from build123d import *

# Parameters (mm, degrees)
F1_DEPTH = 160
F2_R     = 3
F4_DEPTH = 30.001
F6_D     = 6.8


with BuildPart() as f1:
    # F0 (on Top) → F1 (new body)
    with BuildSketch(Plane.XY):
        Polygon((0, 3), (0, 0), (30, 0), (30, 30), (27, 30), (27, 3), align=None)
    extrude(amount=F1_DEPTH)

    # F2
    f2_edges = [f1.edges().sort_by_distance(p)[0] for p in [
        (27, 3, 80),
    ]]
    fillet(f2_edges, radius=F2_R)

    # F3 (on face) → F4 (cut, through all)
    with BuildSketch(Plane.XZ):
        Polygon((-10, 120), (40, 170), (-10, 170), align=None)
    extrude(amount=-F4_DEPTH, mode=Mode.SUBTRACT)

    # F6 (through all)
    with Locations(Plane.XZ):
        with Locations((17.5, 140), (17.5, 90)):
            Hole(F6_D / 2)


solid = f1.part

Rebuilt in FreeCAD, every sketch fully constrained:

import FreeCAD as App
import Part
import Sketcher
from FreeCAD import Vector


def edges_at(feature, points):
    """Names of the edges that pass closest to the given points."""
    edges = feature.Shape.Edges
    near = lambda p: min(range(len(edges)), key=lambda i: edges[i].distToShape(Part.Vertex(*p))[0])
    return sorted({f"Edge{near(p) + 1}" for p in points})


def add_polygon(sketch, points):
    """Adds a closed chain of lines whose ends are joined by coincident constraints."""
    first, n = sketch.GeometryCount, len(points)
    for a, b in zip(points, points[1:] + points[:1]):
        sketch.addGeometry(Part.LineSegment(App.Vector(*a, 0), App.Vector(*b, 0)), False)
    for i in range(n):
        sketch.addConstraint(Sketcher.Constraint("Coincident", first + i, 2, first + (i + 1) % n, 1))

doc = App.newDocument("Part")
body = doc.addObject("PartDesign::Body", "Body")

# Sketch on XY plane
sketch1 = doc.addObject("Sketcher::SketchObject", "Sketch")
body.addObject(sketch1)
sketch1.AttachmentSupport = (doc.XY_Plane, [""])
sketch1.MapMode = "FlatFace"
add_polygon(sketch1, [(0, 3), (0, 0), (30, 0), (30, 30), (27, 30), (27, 3)])  # lines 0-5
sketch1.addConstraint(Sketcher.Constraint("Vertical", 0))
sketch1.addConstraint(Sketcher.Constraint("Horizontal", 1))
sketch1.addConstraint(Sketcher.Constraint("Vertical", 2))
sketch1.addConstraint(Sketcher.Constraint("Horizontal", 3))
sketch1.addConstraint(Sketcher.Constraint("Vertical", 4))
sketch1.addConstraint(Sketcher.Constraint("Horizontal", 5))
sketch1.addConstraint(Sketcher.Constraint("Coincident", 0, 2, -1, 1))
sketch1.addConstraint(Sketcher.Constraint("Equal", 3, 0))
sketch1.addConstraint(Sketcher.Constraint("Equal", 1, 2))
sketch1.addConstraint(Sketcher.Constraint("DistanceX", 1, 1, 1, 2, 30.0))
sketch1.addConstraint(Sketcher.Constraint("DistanceX", 3, 2, 3, 1, 3.0))
pad1 = doc.addObject("PartDesign::Pad", "Pad")
body.addObject(pad1)
pad1.Profile = sketch1
pad1.Length = 160
doc.recompute()

fillet = doc.addObject("PartDesign::Fillet", "Fillet")
body.addObject(fillet)
fillet.Base = (pad1, edges_at(pad1, [(27, 3, 80)]))
fillet.Radius = 3

# Sketch on XZ plane
sketch2 = doc.addObject("Sketcher::SketchObject", "Sketch001")
body.addObject(sketch2)
sketch2.AttachmentSupport = (doc.XZ_Plane, [""])
sketch2.MapMode = "FlatFace"
add_polygon(sketch2, [(-10, 120), (40, 170), (-10, 170)])  # lines 0-2
sketch2.addConstraint(Sketcher.Constraint("Horizontal", 1))
sketch2.addConstraint(Sketcher.Constraint("Vertical", 2))
sketch2.addConstraint(Sketcher.Constraint("Equal", 1, 2))
sketch2.addConstraint(Sketcher.Constraint("DistanceX", 1, 2, 1, 1, 50.0))
sketch2.addConstraint(Sketcher.Constraint("DistanceX", -1, 1, 0, 2, 40.0))
sketch2.addConstraint(Sketcher.Constraint("DistanceY", -1, 1, 0, 2, 170.0))
pocket1 = doc.addObject("PartDesign::Pocket", "Pocket")
body.addObject(pocket1)
pocket1.Profile = sketch2
pocket1.Type = "ThroughAll"

# Sketch on XZ plane
sketch3 = doc.addObject("Sketcher::SketchObject", "Sketch002")
body.addObject(sketch3)
sketch3.AttachmentSupport = (doc.XZ_Plane, [""])
sketch3.MapMode = "FlatFace"
sketch3.addGeometry(Part.Circle(Vector(17.5, 140, 0), Vector(0, 0, 1), 3.4), False)
sketch3.addGeometry(Part.Circle(Vector(17.5, 90, 0), Vector(0, 0, 1), 3.4), False)
sketch3.addConstraint(Sketcher.Constraint("Equal", 0, 1))
sketch3.addConstraint(Sketcher.Constraint("Vertical", 0, 3, 1, 3))
sketch3.addConstraint(Sketcher.Constraint("Diameter", 0, 6.8))
sketch3.addConstraint(Sketcher.Constraint("DistanceY", -1, 1, 0, 3, 140.0))
sketch3.addConstraint(Sketcher.Constraint("DistanceY", -1, 1, 1, 3, 90.0))
sketch3.addConstraint(Sketcher.Constraint("DistanceX", -1, 1, 0, 3, 17.5))
doc.recompute()
hole = doc.addObject("PartDesign::Hole", "Hole")
body.addObject(hole)
hole.Profile = sketch3
hole.ThreadType = "None"
hole.Diameter = 6.8
hole.DepthType = "ThroughAll"

doc.recompute()
